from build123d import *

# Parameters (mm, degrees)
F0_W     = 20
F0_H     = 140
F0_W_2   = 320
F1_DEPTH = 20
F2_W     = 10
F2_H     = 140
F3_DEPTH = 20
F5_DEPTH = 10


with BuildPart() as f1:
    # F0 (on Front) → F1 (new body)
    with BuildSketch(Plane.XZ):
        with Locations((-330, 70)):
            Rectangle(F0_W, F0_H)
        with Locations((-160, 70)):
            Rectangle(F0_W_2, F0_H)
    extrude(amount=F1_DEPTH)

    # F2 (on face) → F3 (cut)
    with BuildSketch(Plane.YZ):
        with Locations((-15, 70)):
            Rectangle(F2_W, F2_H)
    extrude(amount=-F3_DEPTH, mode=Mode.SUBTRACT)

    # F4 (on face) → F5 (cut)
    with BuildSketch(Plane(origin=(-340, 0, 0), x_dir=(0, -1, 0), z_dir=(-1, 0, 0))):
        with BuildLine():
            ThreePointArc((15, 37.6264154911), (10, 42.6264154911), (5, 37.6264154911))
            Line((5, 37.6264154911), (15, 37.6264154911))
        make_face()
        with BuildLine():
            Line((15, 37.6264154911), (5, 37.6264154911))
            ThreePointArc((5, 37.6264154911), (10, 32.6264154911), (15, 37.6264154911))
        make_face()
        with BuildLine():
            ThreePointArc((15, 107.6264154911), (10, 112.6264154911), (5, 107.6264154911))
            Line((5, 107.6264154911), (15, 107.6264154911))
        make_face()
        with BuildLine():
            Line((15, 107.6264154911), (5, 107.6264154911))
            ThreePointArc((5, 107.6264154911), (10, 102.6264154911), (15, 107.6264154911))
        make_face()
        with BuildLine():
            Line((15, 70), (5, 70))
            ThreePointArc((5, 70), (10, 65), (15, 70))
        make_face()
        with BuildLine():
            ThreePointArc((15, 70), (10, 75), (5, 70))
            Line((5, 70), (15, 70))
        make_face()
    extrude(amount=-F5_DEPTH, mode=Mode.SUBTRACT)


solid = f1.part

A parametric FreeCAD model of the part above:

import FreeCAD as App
import Part
import Sketcher
from FreeCAD import Vector
Q = App.Units.Quantity


def add_polygon(sketch, points):
    """Adds a closed chain of lines whose ends are joined by coincident constraints."""
    first, n = sketch.GeometryCount, len(points)
    for a, b in zip(points, points[1:] + points[:1]):
        sketch.addGeometry(Part.LineSegment(App.Vector(*a, 0), App.Vector(*b, 0)), False)
    for i in range(n):
        sketch.addConstraint(Sketcher.Constraint("Coincident", first + i, 2, first + (i + 1) % n, 1))

doc = App.newDocument("Part")
body = doc.addObject("PartDesign::Body", "Body")

# Sketch on XZ plane
sketch1 = body.newObject("Sketcher::SketchObject", "Sketch")
sketch1.AttachmentSupport = (doc.getObject("XZ_Plane"), [""])
sketch1.MapMode = "FlatFace"
add_polygon(sketch1, [(-340, 140), (-340, 0), (0, 0), (0, 140)])  # lines 0-3
sketch1.addConstraint([
    Sketcher.Constraint("Vertical", 0),
    Sketcher.Constraint("Horizontal", 1),
    Sketcher.Constraint("Vertical", 2),
    Sketcher.Constraint("Horizontal", 3),
    Sketcher.Constraint("Coincident", 1, 2, -1, 1),
    Sketcher.Constraint("DistanceX", 1, 1, 1, 2, Q("340 mm")),
    Sketcher.Constraint("DistanceY", 0, 2, 0, 1, Q("140 mm")),
])
pad1 = body.newObject("PartDesign::Pad", "Pad")
pad1.Profile = sketch1
pad1.Length = 20

# Sketch on YZ plane
sketch2 = body.newObject("Sketcher::SketchObject", "Sketch001")
sketch2.AttachmentSupport = (doc.getObject("YZ_Plane"), [""])
sketch2.MapMode = "FlatFace"
add_polygon(sketch2, [(-20, 140), (-20, 0), (-10, 0), (-10, 140)])  # lines 0-3
sketch2.addConstraint([
    Sketcher.Constraint("Vertical", 0),
    Sketcher.Constraint("Horizontal", 1),
    Sketcher.Constraint("Vertical", 2),
    Sketcher.Constraint("Horizontal", 3),
    Sketcher.Constraint("PointOnObject", 0, 2, -1),
    Sketcher.Constraint("DistanceX", 1, 1, 1, 2, Q("10 mm")),
    Sketcher.Constraint("DistanceY", 0, 2, 0, 1, Q("140 mm")),
    Sketcher.Constraint("DistanceX", 0, 2, -1, 1, Q("20 mm")),
])
pocket1 = body.newObject("PartDesign::Pocket", "Pocket")
pocket1.Profile = sketch2
pocket1.Length = 20

# Sketch on YZ plane
sketch3 = body.newObject("Sketcher::SketchObject", "Sketch002")
sketch3.AttachmentSupport = (doc.getObject("YZ_Plane"), [""])
sketch3.MapMode = "FlatFace"
sketch3.AttachmentOffset = App.Placement(Vector(0, 0, -340), App.Rotation())
sketch3.addGeometry([
    Part.Circle(Vector(-10, 38, 0), Vector(0, 0, 1), 5),
    Part.Circle(Vector(-10, 108, 0), Vector(0, 0, 1), 5),
    Part.Circle(Vector(-10, 70, 0), Vector(0, 0, 1), 5),
], False)
sketch3.addConstraint([
    Sketcher.Constraint("Equal", 0, 1),
    Sketcher.Constraint("Equal", 1, 2),
    Sketcher.Constraint("Vertical", 0, 3, 1, 3),
    Sketcher.Constraint("Vertical", 1, 3, 2, 3),
    Sketcher.Constraint("Diameter", 0, Q("10 mm")),
    Sketcher.Constraint("DistanceX", 0, 3, -1, 1, Q("10 mm")),
    Sketcher.Constraint("DistanceY", -1, 1, 2, 3, Q("70 mm")),
    Sketcher.Constraint("DistanceY", 0, 3, 1, 3, Q("70 mm")),
    Sketcher.Constraint("DistanceY", -1, 1, 0, 3, Q("37.626415 mm")),
])
pocket2 = body.newObject("PartDesign::Pocket", "Pocket001")
pocket2.Profile = sketch3
pocket2.Length = 10
pocket2.Reversed = True

doc.recompute()
